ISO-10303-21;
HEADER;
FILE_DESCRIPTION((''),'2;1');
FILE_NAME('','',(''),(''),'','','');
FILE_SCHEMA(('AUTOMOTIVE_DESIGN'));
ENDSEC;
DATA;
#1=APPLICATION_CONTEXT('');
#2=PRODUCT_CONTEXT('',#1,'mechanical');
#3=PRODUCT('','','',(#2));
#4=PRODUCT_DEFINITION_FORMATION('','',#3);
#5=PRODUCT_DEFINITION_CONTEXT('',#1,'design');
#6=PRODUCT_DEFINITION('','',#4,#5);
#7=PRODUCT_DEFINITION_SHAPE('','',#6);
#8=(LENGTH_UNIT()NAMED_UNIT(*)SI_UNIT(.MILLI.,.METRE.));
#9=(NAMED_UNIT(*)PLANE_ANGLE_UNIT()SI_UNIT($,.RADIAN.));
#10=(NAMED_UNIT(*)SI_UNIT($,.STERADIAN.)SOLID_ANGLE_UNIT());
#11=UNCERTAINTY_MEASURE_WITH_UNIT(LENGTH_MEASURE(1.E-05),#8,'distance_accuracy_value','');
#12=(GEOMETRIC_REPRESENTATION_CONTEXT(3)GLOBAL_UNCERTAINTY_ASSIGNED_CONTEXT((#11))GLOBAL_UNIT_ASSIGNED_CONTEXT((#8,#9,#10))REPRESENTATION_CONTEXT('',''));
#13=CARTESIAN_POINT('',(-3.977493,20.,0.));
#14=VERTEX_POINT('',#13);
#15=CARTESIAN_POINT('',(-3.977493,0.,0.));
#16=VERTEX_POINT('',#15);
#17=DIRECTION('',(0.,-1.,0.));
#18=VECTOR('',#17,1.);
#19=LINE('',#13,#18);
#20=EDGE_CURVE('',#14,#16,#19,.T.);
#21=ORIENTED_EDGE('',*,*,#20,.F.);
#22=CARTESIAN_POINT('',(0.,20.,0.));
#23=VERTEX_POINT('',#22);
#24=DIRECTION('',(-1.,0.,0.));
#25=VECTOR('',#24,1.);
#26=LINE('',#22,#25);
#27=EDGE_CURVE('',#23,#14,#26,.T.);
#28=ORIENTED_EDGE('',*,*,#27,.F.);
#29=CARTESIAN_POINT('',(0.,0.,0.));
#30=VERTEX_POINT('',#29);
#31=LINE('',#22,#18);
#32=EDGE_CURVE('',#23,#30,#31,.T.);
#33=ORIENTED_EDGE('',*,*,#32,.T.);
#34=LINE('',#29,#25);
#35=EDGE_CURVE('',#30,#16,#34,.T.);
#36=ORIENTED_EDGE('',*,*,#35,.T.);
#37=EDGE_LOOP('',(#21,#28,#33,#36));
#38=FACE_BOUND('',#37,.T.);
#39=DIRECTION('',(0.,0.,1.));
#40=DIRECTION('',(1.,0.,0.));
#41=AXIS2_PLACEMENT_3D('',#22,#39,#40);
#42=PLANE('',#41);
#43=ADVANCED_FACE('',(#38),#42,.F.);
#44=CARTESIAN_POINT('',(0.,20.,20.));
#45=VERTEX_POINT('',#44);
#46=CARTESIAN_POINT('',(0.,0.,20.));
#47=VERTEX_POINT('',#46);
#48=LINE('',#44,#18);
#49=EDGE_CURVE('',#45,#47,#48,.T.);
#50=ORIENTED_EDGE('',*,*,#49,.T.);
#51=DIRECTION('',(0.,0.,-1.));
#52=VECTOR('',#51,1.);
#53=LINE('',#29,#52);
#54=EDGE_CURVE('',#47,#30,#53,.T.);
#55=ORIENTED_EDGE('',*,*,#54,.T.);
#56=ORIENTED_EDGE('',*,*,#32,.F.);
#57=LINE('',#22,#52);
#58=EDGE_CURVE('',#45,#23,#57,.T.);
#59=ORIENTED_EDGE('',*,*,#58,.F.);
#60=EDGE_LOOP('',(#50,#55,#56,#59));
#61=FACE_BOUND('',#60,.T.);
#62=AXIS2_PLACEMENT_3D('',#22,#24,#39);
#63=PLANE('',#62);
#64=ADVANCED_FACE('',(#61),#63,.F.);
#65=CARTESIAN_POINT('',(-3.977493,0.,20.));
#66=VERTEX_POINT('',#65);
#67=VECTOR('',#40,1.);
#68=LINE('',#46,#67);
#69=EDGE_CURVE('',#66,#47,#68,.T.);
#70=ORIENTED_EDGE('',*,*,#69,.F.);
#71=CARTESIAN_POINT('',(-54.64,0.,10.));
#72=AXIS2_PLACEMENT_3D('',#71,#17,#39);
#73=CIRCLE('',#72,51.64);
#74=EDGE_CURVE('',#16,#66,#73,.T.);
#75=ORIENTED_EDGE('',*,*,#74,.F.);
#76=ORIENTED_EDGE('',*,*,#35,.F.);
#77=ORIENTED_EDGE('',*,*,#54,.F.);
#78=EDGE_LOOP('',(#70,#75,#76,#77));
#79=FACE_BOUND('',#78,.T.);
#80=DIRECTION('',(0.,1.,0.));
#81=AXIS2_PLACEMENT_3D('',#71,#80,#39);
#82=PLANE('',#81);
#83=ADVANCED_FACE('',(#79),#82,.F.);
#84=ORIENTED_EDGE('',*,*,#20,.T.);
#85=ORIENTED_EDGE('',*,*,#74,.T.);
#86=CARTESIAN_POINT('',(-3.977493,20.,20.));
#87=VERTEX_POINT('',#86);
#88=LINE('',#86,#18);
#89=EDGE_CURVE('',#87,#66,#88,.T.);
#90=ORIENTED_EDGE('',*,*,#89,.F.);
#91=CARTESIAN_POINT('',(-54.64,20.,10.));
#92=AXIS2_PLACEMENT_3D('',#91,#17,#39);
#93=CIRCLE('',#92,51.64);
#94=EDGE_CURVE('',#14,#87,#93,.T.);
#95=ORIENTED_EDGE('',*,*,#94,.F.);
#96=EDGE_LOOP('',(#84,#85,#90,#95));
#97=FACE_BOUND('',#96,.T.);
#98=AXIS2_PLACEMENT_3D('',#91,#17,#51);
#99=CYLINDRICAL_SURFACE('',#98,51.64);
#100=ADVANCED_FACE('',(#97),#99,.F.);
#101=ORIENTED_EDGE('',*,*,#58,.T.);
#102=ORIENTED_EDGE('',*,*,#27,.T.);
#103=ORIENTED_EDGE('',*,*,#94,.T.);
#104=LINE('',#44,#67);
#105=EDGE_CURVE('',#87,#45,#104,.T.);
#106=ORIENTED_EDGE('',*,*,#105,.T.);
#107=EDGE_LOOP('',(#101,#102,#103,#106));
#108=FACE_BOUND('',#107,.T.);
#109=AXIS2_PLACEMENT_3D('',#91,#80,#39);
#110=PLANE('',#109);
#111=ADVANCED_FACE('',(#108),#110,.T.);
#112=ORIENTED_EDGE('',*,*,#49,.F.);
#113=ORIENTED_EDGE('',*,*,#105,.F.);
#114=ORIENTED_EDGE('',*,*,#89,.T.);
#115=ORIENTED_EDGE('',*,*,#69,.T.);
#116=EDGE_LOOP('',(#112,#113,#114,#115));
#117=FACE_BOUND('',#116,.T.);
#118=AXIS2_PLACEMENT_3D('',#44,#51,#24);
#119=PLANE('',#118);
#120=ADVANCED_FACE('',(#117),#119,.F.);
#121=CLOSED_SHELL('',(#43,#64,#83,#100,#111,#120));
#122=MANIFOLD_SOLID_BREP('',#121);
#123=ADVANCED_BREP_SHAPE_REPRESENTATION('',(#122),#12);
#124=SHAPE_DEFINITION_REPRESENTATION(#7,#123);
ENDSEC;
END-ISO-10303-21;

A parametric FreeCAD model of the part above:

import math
import FreeCAD as App
import Part
import Sketcher

doc = App.newDocument("Part")
body = doc.addObject("PartDesign::Body", "Body")

sketch1 = body.newObject("Sketcher::SketchObject", "Sketch")
sketch1.AttachmentSupport = (doc.getObject("XZ_Plane"), [""])
sketch1.MapMode = "FlatFace"
sketch1.addGeometry(Part.LineSegment(App.Vector(0, 20, 0), App.Vector(0, 0, 0)), False)
sketch1.addGeometry(Part.LineSegment(App.Vector(0, 0, 0), App.Vector(-4, 0, 0)), False)
sketch1.addGeometry(Part.ArcOfCircle(Part.Circle(App.Vector(-54.6, 10, 0), App.Vector(0, 0, 1), 51.6), math.radians(-11), math.radians(11)), False)
sketch1.addGeometry(Part.LineSegment(App.Vector(-4, 20, 0), App.Vector(0, 20, 0)), False)
sketch1.addConstraint(Sketcher.Constraint("Coincident", 0, 2, 1, 1))
sketch1.addConstraint(Sketcher.Constraint("Coincident", 1, 2, 2, 1))
sketch1.addConstraint(Sketcher.Constraint("Coincident", 2, 2, 3, 1))
sketch1.addConstraint(Sketcher.Constraint("Coincident", 3, 2, 0, 1))
sketch1.addConstraint(Sketcher.Constraint("Vertical", 0))
sketch1.addConstraint(Sketcher.Constraint("Horizontal", 1))
sketch1.addConstraint(Sketcher.Constraint("Horizontal", 3))
sketch1.addConstraint(Sketcher.Constraint("Coincident", 0, 2, -1, 1))
sketch1.addConstraint(Sketcher.Constraint("Vertical", 1, 2, 2, 2))
sketch1.addConstraint(Sketcher.Constraint("DistanceY", 0, 2, 0, 1, 20.0))
sketch1.addConstraint(Sketcher.Constraint("Radius", 2, 51.64))
sketch1.addConstraint(Sketcher.Constraint("DistanceX", 2, 3, -1, 1, 54.64))
pad1 = body.newObject("PartDesign::Pad", "Pad")
pad1.Profile = sketch1
pad1.Length = 20
pad1.Reversed = True

doc.recompute()
